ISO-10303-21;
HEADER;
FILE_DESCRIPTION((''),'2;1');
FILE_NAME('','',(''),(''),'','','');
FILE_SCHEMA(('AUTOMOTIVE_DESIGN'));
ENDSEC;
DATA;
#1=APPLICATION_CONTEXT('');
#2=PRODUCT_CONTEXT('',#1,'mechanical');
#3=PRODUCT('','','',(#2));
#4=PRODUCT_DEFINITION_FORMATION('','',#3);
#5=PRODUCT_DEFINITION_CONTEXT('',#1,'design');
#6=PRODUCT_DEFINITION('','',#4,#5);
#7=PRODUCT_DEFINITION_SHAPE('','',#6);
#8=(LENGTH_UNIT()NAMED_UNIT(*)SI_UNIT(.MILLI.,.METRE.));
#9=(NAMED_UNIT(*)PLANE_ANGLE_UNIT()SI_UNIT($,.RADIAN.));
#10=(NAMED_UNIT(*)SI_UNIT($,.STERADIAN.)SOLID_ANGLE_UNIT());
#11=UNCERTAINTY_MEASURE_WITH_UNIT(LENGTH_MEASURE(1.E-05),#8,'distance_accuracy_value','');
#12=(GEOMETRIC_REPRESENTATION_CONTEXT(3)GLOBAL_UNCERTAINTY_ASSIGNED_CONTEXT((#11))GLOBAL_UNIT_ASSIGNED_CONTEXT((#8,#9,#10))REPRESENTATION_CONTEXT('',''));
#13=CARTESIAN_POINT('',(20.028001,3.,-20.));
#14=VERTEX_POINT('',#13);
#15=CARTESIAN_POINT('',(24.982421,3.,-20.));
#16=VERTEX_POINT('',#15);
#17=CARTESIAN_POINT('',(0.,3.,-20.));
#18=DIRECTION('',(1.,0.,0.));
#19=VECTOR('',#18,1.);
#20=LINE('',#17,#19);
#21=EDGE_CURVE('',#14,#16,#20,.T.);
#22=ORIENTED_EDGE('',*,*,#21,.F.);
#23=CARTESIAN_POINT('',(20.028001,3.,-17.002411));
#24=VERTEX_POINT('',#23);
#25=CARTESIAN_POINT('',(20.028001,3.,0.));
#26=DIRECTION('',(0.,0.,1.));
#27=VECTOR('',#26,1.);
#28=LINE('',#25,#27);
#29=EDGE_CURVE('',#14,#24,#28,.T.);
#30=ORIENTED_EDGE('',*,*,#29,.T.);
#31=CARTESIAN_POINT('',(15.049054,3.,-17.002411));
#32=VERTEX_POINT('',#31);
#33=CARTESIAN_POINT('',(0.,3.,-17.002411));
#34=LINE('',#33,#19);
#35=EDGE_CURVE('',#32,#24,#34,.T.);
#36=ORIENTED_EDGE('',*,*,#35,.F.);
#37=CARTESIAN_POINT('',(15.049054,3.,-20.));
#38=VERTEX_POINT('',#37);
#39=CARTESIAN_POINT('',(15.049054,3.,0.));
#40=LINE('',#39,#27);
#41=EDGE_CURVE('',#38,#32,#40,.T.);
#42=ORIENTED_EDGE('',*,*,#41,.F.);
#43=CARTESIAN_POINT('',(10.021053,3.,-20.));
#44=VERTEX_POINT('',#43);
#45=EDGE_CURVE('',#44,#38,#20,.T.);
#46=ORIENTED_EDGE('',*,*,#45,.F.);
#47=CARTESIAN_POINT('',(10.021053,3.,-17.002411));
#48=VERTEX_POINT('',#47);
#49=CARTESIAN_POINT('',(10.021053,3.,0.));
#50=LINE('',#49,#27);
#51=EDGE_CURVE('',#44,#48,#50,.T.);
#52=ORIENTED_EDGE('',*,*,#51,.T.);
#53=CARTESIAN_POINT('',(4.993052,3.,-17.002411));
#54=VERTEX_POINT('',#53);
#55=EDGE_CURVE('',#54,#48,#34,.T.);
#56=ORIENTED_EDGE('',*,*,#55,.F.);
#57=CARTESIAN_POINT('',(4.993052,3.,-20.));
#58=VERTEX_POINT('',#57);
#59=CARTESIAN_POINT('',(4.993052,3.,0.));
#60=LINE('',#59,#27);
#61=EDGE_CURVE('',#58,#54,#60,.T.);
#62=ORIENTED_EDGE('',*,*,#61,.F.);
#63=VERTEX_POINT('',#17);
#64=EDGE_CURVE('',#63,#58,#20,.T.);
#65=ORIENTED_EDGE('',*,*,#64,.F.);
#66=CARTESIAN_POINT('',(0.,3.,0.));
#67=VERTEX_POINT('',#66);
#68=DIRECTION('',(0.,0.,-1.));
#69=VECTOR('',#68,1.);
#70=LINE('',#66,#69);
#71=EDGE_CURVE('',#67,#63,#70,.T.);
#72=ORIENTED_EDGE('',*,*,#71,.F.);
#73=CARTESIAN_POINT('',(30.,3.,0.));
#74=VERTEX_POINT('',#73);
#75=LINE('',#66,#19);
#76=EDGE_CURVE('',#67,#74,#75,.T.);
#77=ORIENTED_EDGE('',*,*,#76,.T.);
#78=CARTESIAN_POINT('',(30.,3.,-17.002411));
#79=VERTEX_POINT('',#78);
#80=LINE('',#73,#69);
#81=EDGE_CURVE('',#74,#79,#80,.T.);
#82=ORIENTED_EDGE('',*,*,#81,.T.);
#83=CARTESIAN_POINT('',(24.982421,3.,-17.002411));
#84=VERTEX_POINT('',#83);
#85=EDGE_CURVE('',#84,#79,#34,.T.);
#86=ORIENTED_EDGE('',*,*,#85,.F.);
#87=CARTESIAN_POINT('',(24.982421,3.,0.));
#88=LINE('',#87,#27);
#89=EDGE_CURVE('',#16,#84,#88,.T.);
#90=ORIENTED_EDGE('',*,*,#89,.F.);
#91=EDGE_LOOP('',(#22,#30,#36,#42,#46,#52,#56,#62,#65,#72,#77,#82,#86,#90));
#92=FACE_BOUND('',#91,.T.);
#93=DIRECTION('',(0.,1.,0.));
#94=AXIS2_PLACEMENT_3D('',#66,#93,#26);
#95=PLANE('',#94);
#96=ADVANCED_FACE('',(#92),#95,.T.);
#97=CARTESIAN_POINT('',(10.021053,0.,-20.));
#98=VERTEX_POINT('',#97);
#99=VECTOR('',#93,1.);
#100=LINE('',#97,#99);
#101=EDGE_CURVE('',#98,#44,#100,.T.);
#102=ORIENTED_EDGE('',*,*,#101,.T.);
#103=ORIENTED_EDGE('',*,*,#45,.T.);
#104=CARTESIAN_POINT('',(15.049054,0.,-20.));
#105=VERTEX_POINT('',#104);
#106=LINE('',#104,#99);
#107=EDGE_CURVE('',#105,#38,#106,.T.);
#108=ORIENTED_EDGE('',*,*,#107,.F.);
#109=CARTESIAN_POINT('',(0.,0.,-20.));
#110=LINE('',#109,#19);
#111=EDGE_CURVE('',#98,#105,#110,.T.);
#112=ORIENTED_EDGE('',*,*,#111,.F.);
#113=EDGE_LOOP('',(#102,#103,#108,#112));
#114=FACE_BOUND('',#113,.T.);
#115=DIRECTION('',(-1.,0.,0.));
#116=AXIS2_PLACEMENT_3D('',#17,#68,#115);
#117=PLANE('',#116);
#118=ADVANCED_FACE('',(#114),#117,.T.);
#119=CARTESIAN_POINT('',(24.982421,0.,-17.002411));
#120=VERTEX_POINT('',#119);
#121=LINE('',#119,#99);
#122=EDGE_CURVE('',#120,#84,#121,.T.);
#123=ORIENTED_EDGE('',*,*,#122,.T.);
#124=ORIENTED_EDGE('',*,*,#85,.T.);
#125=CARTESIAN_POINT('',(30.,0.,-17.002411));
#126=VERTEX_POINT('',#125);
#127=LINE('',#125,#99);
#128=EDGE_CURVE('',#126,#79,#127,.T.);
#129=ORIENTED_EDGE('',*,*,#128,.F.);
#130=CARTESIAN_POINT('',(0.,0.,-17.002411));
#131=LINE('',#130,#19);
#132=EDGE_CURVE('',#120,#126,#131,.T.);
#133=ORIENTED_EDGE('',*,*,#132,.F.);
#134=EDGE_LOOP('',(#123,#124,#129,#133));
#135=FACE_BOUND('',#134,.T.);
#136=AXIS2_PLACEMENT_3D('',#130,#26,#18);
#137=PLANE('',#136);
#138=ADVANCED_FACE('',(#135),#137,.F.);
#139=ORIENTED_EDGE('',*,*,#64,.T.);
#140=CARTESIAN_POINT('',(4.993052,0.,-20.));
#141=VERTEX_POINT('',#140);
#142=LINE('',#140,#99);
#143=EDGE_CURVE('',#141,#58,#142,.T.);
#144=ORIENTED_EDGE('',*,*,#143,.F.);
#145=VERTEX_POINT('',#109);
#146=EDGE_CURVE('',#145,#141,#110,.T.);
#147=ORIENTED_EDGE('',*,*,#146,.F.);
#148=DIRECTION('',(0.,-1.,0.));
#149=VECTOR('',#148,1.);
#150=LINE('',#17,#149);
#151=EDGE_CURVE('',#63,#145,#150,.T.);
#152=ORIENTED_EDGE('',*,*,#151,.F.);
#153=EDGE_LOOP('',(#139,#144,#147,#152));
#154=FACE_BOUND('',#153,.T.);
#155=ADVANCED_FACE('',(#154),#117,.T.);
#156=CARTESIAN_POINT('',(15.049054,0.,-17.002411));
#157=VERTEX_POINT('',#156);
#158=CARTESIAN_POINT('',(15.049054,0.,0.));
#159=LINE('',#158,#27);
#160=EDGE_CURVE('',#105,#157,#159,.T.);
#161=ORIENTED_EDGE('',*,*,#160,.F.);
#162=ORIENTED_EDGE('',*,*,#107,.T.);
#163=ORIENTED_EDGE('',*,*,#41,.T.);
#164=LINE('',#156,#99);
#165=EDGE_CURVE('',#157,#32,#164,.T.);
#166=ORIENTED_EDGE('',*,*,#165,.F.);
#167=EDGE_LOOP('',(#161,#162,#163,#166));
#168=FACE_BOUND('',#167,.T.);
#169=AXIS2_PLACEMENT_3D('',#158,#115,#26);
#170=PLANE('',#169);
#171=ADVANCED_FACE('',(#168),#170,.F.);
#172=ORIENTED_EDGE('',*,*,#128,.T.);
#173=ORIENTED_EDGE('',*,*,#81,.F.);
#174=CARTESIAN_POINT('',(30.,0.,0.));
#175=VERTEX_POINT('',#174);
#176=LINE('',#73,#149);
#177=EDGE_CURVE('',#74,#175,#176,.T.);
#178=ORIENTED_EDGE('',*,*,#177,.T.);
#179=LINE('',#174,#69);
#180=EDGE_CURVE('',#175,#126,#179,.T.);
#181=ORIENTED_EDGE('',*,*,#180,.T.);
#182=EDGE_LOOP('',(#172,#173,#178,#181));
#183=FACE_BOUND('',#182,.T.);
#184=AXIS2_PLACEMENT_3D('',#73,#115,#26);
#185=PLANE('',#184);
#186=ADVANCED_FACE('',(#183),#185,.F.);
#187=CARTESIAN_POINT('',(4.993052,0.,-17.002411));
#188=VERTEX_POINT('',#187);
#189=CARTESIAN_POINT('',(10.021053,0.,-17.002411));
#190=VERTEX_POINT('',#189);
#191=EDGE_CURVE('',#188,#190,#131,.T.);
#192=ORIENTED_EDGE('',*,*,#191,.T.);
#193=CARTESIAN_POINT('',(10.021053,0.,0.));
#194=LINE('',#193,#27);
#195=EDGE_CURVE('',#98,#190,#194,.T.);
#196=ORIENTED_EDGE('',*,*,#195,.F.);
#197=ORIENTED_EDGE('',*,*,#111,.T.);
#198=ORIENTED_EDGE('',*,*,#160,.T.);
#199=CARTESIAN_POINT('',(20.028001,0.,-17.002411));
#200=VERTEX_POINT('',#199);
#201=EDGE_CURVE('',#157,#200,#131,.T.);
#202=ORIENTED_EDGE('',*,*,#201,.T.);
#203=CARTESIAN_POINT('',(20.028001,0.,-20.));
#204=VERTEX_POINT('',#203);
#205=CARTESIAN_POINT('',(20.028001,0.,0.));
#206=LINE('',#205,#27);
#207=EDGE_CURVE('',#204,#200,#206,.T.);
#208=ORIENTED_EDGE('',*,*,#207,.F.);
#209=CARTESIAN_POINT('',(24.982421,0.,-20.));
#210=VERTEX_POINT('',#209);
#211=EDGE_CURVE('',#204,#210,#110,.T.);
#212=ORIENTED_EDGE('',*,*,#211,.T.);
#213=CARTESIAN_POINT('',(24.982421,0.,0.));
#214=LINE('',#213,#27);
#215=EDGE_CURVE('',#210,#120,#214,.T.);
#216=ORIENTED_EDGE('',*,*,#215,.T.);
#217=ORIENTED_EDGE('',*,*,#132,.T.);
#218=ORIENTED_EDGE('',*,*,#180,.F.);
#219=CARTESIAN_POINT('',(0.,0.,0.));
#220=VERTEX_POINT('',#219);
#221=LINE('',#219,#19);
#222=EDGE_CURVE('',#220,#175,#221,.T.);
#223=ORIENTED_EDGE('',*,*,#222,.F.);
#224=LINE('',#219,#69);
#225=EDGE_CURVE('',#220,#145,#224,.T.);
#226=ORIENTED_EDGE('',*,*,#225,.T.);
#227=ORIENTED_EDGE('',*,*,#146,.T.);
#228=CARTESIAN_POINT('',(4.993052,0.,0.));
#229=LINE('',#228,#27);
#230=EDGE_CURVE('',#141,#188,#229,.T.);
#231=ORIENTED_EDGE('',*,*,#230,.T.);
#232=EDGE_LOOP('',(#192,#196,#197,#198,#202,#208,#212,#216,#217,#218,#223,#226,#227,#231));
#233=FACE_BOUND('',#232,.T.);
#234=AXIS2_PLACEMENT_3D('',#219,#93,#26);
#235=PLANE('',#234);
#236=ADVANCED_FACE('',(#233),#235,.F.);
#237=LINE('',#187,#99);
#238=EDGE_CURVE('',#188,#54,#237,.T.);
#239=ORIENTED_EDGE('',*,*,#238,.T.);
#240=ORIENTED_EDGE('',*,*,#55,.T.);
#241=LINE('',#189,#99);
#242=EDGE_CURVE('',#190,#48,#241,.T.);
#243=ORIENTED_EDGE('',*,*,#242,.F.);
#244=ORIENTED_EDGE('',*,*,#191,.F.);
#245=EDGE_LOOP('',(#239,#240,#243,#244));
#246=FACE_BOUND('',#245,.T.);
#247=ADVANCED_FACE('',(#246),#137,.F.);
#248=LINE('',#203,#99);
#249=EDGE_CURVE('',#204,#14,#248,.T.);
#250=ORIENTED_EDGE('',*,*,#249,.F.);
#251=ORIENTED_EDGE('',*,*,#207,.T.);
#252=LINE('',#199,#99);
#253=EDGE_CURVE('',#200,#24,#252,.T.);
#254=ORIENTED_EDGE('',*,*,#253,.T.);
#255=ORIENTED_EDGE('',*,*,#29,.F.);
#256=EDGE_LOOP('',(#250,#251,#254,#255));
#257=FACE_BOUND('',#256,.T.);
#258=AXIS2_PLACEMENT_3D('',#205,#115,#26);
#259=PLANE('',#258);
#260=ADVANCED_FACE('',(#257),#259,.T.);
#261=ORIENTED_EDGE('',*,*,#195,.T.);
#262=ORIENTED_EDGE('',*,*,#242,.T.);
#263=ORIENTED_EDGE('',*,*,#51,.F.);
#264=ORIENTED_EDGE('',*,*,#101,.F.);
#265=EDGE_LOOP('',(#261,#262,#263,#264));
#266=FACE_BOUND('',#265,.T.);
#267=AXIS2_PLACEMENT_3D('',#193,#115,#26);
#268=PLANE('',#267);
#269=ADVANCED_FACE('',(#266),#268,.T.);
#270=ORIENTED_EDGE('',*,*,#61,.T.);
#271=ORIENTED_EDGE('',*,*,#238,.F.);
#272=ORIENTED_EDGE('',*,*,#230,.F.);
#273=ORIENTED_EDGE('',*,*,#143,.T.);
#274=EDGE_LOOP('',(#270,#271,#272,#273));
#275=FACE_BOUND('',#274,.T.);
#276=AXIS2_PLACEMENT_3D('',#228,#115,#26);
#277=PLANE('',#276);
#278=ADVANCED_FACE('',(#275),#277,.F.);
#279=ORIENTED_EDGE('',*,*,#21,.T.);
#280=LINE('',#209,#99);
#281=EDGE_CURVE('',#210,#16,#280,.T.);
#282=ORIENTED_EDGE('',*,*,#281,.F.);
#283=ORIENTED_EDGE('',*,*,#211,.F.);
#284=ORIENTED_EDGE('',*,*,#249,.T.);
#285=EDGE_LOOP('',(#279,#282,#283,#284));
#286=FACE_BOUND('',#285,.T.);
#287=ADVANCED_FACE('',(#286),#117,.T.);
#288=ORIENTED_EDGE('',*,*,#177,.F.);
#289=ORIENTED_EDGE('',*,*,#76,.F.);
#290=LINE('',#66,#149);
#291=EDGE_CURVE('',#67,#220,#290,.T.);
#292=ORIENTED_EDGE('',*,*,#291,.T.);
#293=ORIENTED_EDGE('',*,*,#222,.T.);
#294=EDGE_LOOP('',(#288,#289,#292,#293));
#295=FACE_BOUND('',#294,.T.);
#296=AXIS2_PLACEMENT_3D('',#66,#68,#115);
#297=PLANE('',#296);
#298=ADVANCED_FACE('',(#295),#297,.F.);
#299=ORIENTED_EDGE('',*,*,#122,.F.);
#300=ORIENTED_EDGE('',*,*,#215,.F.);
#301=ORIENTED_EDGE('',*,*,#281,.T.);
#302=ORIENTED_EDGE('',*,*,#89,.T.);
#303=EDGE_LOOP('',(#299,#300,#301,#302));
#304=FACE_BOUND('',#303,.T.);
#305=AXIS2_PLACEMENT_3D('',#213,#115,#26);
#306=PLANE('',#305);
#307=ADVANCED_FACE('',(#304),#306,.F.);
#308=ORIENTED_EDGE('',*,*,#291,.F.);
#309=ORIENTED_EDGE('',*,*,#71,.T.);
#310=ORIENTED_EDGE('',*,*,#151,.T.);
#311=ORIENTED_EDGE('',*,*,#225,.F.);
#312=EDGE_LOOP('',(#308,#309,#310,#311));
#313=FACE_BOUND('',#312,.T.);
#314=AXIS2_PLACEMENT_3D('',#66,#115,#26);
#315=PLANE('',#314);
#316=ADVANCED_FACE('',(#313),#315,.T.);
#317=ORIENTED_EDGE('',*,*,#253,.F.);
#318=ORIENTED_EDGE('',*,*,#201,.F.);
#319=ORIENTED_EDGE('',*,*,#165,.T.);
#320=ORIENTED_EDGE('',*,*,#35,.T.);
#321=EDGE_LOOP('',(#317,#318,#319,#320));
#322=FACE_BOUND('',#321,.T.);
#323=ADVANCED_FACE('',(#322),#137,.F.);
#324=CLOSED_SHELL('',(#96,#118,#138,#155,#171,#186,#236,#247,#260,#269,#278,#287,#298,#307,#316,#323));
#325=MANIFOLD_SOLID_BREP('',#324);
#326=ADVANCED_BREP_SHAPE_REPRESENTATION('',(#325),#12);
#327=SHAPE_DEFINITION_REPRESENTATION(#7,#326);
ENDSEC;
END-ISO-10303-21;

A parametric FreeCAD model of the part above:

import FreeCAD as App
import Part
import Sketcher
from FreeCAD import Vector
Q = App.Units.Quantity

doc = App.newDocument("Part")
body = doc.addObject("PartDesign::Body", "Body")

sketch1 = body.newObject("Sketcher::SketchObject", "Sketch")
sketch1.AttachmentSupport = (doc.getObject("XZ_Plane"), [""])
sketch1.MapMode = "FlatFace"
sketch1.addGeometry(Part.LineSegment(Vector(0, -20, 0), Vector(0, 0, 0)), False)
sketch1.addGeometry(Part.LineSegment(Vector(0, 0, 0), Vector(30, 0, 0)), False)
sketch1.addGeometry(Part.LineSegment(Vector(30, 0, 0), Vector(30, -20, 0)), False)
sketch1.addGeometry(Part.LineSegment(Vector(30, -20, 0), Vector(0, -20, 0)), False)
sketch1.addConstraint(Sketcher.Constraint("Coincident", 0, 2, 1, 1))
sketch1.addConstraint(Sketcher.Constraint("Coincident", 1, 2, 2, 1))
sketch1.addConstraint(Sketcher.Constraint("Coincident", 2, 2, 3, 1))
sketch1.addConstraint(Sketcher.Constraint("Coincident", 3, 2, 0, 1))
sketch1.addConstraint(Sketcher.Constraint("Vertical", 0))
sketch1.addConstraint(Sketcher.Constraint("Horizontal", 1))
sketch1.addConstraint(Sketcher.Constraint("Vertical", 2))
sketch1.addConstraint(Sketcher.Constraint("Horizontal", 3))
sketch1.addConstraint(Sketcher.Constraint("Coincident", 0, 2, -1, 1))
sketch1.addConstraint(Sketcher.Constraint("DistanceX", 1, 1, 1, 2, Q("30 mm")))
sketch1.addConstraint(Sketcher.Constraint("DistanceY", 0, 1, 0, 2, Q("20 mm")))
pad1 = body.newObject("PartDesign::Pad", "Pad")
pad1.Profile = sketch1
pad1.Length = 3
pad1.Reversed = True

sketch2 = body.newObject("Sketcher::SketchObject", "Sketch001")
sketch2.AttachmentSupport = (doc.getObject("XZ_Plane"), [""])
sketch2.MapMode = "FlatFace"
sketch2.AttachmentOffset = App.Placement(Vector(0, 0, -3), App.Rotation())
sketch2.addGeometry(Part.LineSegment(Vector(5, -20, 0), Vector(5, -17, 0)), False)
sketch2.addGeometry(Part.LineSegment(Vector(5, -17, 0), Vector(10, -17, 0)), False)
sketch2.addGeometry(Part.LineSegment(Vector(10, -17, 0), Vector(10, -20, 0)), False)
sketch2.addGeometry(Part.LineSegment(Vector(10, -20, 0), Vector(5, -20, 0)), False)
sketch2.addGeometry(Part.LineSegment(Vector(15, -20, 0), Vector(15, -17, 0)), False)
sketch2.addGeometry(Part.LineSegment(Vector(15, -17, 0), Vector(20, -17, 0)), False)
sketch2.addGeometry(Part.LineSegment(Vector(20, -17, 0), Vector(20, -20, 0)), False)
sketch2.addGeometry(Part.LineSegment(Vector(20, -20, 0), Vector(15, -20, 0)), False)
sketch2.addGeometry(Part.LineSegment(Vector(25, -20, 0), Vector(25, -17, 0)), False)
sketch2.addGeometry(Part.LineSegment(Vector(25, -17, 0), Vector(30, -17, 0)), False)
sketch2.addGeometry(Part.LineSegment(Vector(30, -17, 0), Vector(30, -20, 0)), False)
sketch2.addGeometry(Part.LineSegment(Vector(30, -20, 0), Vector(25, -20, 0)), False)
sketch2.addConstraint(Sketcher.Constraint("Coincident", 0, 2, 1, 1))
sketch2.addConstraint(Sketcher.Constraint("Coincident", 1, 2, 2, 1))
sketch2.addConstraint(Sketcher.Constraint("Coincident", 2, 2, 3, 1))
sketch2.addConstraint(Sketcher.Constraint("Coincident", 3, 2, 0, 1))
sketch2.addConstraint(Sketcher.Constraint("Coincident", 4, 2, 5, 1))
sketch2.addConstraint(Sketcher.Constraint("Coincident", 5, 2, 6, 1))
sketch2.addConstraint(Sketcher.Constraint("Coincident", 6, 2, 7, 1))
sketch2.addConstraint(Sketcher.Constraint("Coincident", 7, 2, 4, 1))
sketch2.addConstraint(Sketcher.Constraint("Coincident", 8, 2, 9, 1))
sketch2.addConstraint(Sketcher.Constraint("Coincident", 9, 2, 10, 1))
sketch2.addConstraint(Sketcher.Constraint("Coincident", 10, 2, 11, 1))
sketch2.addConstraint(Sketcher.Constraint("Coincident", 11, 2, 8, 1))
sketch2.addConstraint(Sketcher.Constraint("Vertical", 0))
sketch2.addConstraint(Sketcher.Constraint("Horizontal", 1))
sketch2.addConstraint(Sketcher.Constraint("Vertical", 2))
sketch2.addConstraint(Sketcher.Constraint("Horizontal", 3))
sketch2.addConstraint(Sketcher.Constraint("Vertical", 4))
sketch2.addConstraint(Sketcher.Constraint("Horizontal", 5))
sketch2.addConstraint(Sketcher.Constraint("Vertical", 6))
sketch2.addConstraint(Sketcher.Constraint("Horizontal", 7))
sketch2.addConstraint(Sketcher.Constraint("Vertical", 8))
sketch2.addConstraint(Sketcher.Constraint("Horizontal", 9))
sketch2.addConstraint(Sketcher.Constraint("Vertical", 10))
sketch2.addConstraint(Sketcher.Constraint("Horizontal", 11))
sketch2.addConstraint(Sketcher.Constraint("Horizontal", 1, 2, 4, 2))
sketch2.addConstraint(Sketcher.Constraint("Horizontal", 3, 2, 6, 2))
sketch2.addConstraint(Sketcher.Constraint("Horizontal", 5, 2, 8, 2))
sketch2.addConstraint(Sketcher.Constraint("Horizontal", 7, 2, 10, 2))
sketch2.addConstraint(Sketcher.Constraint("DistanceY", 2, 2, -1, 1, Q("20 mm")))
sketch2.addConstraint(Sketcher.Constraint("DistanceX", -1, 1, 9, 2, Q("30 mm")))
sketch2.addConstraint(Sketcher.Constraint("DistanceX", 1, 1, 1, 2, Q("5.028001 mm")))
sketch2.addConstraint(Sketcher.Constraint("DistanceX", -1, 1, 5, 2, Q("20.028001 mm")))
sketch2.addConstraint(Sketcher.Constraint("DistanceX", 1, 2, 4, 2, Q("5.028001 mm")))
sketch2.addConstraint(Sketcher.Constraint("DistanceX", 9, 1, 9, 2, Q("5.017579 mm")))
sketch2.addConstraint(Sketcher.Constraint("DistanceY", 0, 1, 0, 2, Q("2.997589 mm")))
sketch2.addConstraint(Sketcher.Constraint("DistanceX", 5, 1, 5, 2, Q("4.978947 mm")))
pocket1 = body.newObject("PartDesign::Pocket", "Pocket")
pocket1.Profile = sketch2
pocket1.Length = 3
pocket1.Reversed = True

doc.recompute()
